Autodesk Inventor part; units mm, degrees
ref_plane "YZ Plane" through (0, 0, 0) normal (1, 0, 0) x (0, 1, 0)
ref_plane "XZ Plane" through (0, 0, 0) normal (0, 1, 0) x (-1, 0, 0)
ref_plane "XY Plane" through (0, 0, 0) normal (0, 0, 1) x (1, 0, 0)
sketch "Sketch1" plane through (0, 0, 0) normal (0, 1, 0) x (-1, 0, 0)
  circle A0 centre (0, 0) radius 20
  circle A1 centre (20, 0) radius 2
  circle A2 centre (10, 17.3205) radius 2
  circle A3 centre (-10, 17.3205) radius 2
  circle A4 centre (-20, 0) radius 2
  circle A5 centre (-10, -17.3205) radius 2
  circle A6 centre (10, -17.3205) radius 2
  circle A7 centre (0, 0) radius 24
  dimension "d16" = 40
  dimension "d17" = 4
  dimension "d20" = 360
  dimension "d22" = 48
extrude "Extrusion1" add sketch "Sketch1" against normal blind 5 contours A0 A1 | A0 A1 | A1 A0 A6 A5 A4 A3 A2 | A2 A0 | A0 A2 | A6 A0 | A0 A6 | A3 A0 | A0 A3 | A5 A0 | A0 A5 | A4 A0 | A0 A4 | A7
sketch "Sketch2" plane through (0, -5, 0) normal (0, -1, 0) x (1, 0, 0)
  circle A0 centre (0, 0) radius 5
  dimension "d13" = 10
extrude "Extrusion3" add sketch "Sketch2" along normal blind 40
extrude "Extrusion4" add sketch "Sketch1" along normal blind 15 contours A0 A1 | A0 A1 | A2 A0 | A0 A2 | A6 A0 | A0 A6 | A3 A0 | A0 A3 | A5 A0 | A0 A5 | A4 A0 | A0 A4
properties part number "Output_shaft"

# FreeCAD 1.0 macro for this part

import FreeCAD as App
import Part
import Sketcher
from FreeCAD import Vector

doc = App.newDocument("Part")
params = doc.addObject("Spreadsheet::Sheet", "Params")
for row, (alias, value) in enumerate([
    ("sketch1_diameter", "48 mm"),
    ("pad1_length", "5 mm"),
    ("sketch2_diameter", "10 mm"),
    ("pad2_length", "40 mm"),
    ("sketch3_diameter", "4 mm"),
    ("pad3_length", "15 mm"),
], start=1):
    params.set(f"A{row}", alias)
    params.set(f"B{row}", "=" + value)
    params.setAlias(f"B{row}", alias)

body = doc.addObject("PartDesign::Body", "Body")

# Sketch on XZ plane
sketch1 = body.newObject("Sketcher::SketchObject", "Sketch")
sketch1.AttachmentSupport = (doc.getObject("XZ_Plane"), [""])
sketch1.MapMode = "FlatFace"
sketch1.addGeometry(Part.Circle(Vector(0, 0, 0), Vector(0, 0, 1), 24), False)
sketch1.addConstraint([
    Sketcher.Constraint("Coincident", 0, 3, -1, 1),
    Sketcher.Constraint("Diameter", 0, 48.0),
])
sketch1.setExpression("Constraints[1]", "Params.sketch1_diameter")
pad1 = body.newObject("PartDesign::Pad", "Pad")
pad1.Profile = sketch1
pad1.setExpression("Length", "Params.pad1_length")

# Sketch on XZ plane
sketch2 = body.newObject("Sketcher::SketchObject", "Sketch001")
sketch2.AttachmentSupport = (doc.getObject("XZ_Plane"), [""])
sketch2.MapMode = "FlatFace"
sketch2.AttachmentOffset = App.Placement(Vector(0, 0, 5), App.Rotation())
sketch2.addGeometry(Part.Circle(Vector(0, 0, 0), Vector(0, 0, 1), 5), False)
sketch2.addConstraint([
    Sketcher.Constraint("Coincident", 0, 3, -1, 1),
    Sketcher.Constraint("Diameter", 0, 10.0),
])
sketch2.setExpression("Constraints[1]", "Params.sketch2_diameter")
pad2 = body.newObject("PartDesign::Pad", "Pad001")
pad2.Profile = sketch2
pad2.setExpression("Length", "Params.pad2_length")

# Sketch on XZ plane
sketch3 = body.newObject("Sketcher::SketchObject", "Sketch002")
sketch3.AttachmentSupport = (doc.getObject("XZ_Plane"), [""])
sketch3.MapMode = "FlatFace"
sketch3.addGeometry([
    Part.Circle(Vector(-20, 0, 0), Vector(0, 0, 1), 2),  # 0
    Part.Circle(Vector(-10, 17.3, 0), Vector(0, 0, 1), 2),  # 1
    Part.Circle(Vector(-10, -17.3, 0), Vector(0, 0, 1), 2),  # 2
    Part.Circle(Vector(10, 17.3, 0), Vector(0, 0, 1), 2),  # 3
    Part.Circle(Vector(10, -17.3, 0), Vector(0, 0, 1), 2),  # 4
    Part.Circle(Vector(20, 0, 0), Vector(0, 0, 1), 2),  # 5
], False)
sketch3.addConstraint([
    Sketcher.Constraint("Equal", 0, 1),
    Sketcher.Constraint("Equal", 1, 2),
    Sketcher.Constraint("Equal", 2, 3),
    Sketcher.Constraint("Equal", 3, 4),
    Sketcher.Constraint("Equal", 4, 5),
    Sketcher.Constraint("Symmetric", 2, 3, 3, 3, -1, 1),
    Sketcher.Constraint("Symmetric", 1, 3, 4, 3, -1, 1),
    Sketcher.Constraint("Symmetric", 0, 3, 5, 3, -1, 1),
    Sketcher.Constraint("Symmetric", 1, 3, 3, 3, -2),
    Sketcher.Constraint("PointOnObject", 0, 3, -1),
    Sketcher.Constraint("Diameter", 0, 4.0),
    Sketcher.Constraint("DistanceX", 0, 3, 5, 3, 40.0),
    Sketcher.Constraint("DistanceX", 1, 3, -1, 1, 10.0),
    Sketcher.Constraint("DistanceY", 2, 3, 1, 3, 34.641),
])
sketch3.setExpression("Constraints[10]", "Params.sketch3_diameter")
pad3 = body.newObject("PartDesign::Pad", "Pad002")
pad3.Profile = sketch3
pad3.setExpression("Length", "Params.pad3_length")
pad3.Reversed = True

doc.recompute()
